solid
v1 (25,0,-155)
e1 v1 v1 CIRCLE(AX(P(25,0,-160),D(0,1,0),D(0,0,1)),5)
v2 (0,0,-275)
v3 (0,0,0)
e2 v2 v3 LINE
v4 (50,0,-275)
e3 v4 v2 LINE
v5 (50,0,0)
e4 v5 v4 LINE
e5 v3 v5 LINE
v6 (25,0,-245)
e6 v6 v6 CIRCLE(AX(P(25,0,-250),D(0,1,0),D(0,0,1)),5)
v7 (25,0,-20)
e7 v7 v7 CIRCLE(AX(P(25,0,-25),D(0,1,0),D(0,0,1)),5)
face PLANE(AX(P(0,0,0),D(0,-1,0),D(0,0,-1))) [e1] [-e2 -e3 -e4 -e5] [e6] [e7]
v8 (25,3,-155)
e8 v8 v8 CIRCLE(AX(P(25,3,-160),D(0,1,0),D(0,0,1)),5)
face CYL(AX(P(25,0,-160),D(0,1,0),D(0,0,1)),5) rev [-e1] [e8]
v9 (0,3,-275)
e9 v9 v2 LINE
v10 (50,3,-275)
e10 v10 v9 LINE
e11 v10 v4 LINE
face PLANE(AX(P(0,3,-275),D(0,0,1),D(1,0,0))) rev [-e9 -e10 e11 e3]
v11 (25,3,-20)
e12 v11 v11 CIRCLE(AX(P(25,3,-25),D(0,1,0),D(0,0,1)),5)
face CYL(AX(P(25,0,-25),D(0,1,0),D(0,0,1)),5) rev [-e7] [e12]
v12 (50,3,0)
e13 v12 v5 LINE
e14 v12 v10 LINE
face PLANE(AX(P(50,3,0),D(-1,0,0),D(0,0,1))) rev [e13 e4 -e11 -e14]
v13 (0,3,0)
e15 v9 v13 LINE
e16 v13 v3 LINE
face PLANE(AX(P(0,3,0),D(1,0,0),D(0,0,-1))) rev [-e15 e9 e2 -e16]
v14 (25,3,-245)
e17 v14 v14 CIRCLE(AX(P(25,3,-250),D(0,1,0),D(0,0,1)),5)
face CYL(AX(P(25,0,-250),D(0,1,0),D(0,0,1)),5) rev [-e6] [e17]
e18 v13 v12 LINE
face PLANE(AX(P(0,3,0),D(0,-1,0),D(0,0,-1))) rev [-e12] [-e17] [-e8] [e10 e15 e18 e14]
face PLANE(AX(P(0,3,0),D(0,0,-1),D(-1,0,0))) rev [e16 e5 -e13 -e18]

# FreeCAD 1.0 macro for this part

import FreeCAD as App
import Part
import Sketcher
from FreeCAD import Vector


def add_polygon(sketch, points):
    """Adds a closed chain of lines whose ends are joined by coincident constraints."""
    first, n = sketch.GeometryCount, len(points)
    for a, b in zip(points, points[1:] + points[:1]):
        sketch.addGeometry(Part.LineSegment(App.Vector(*a, 0), App.Vector(*b, 0)), False)
    for i in range(n):
        sketch.addConstraint(Sketcher.Constraint("Coincident", first + i, 2, first + (i + 1) % n, 1))

doc = App.newDocument("Part")
body = doc.addObject("PartDesign::Body", "Body")

sketch1 = doc.addObject("Sketcher::SketchObject", "Sketch")
body.addObject(sketch1)
sketch1.AttachmentSupport = (doc.XZ_Plane, [""])
sketch1.MapMode = "FlatFace"
add_polygon(sketch1, [(0, -275), (0, 0), (50, 0), (50, -275)])
sketch1.addConstraint([
    Sketcher.Constraint("Vertical", 0),
    Sketcher.Constraint("Horizontal", 1),
    Sketcher.Constraint("Vertical", 2),
    Sketcher.Constraint("Horizontal", 3),
    Sketcher.Constraint("Coincident", 0, 2, -1, 1),
    Sketcher.Constraint("DistanceX", 1, 1, 1, 2, 50.0),
    Sketcher.Constraint("DistanceY", 0, 1, 0, 2, 275.0),
])
pad1 = doc.addObject("PartDesign::Pad", "Pad")
body.addObject(pad1)
pad1.Profile = sketch1
pad1.Length = 3
pad1.Reversed = True

sketch2 = doc.addObject("Sketcher::SketchObject", "Sketch001")
body.addObject(sketch2)
sketch2.AttachmentSupport = (doc.XZ_Plane, [""])
sketch2.MapMode = "FlatFace"
sketch2.AttachmentOffset = App.Placement(Vector(0, 0, -3), App.Rotation())
sketch2.addGeometry([
    Part.Circle(Vector(25, -250, 0), Vector(0, 0, 1), 5),
    Part.Circle(Vector(25, -25, 0), Vector(0, 0, 1), 5),
    Part.Circle(Vector(25, -160, 0), Vector(0, 0, 1), 5),
], False)
sketch2.addConstraint([
    Sketcher.Constraint("Equal", 0, 1),
    Sketcher.Constraint("Equal", 1, 2),
    Sketcher.Constraint("Vertical", 0, 3, 1, 3),
    Sketcher.Constraint("Vertical", 1, 3, 2, 3),
    Sketcher.Constraint("Diameter", 0, 10.0),
    Sketcher.Constraint("DistanceX", -1, 1, 0, 3, 25.0),
    Sketcher.Constraint("DistanceY", 0, 3, -1, 1, 250.0),
    Sketcher.Constraint("DistanceY", 1, 3, -1, 1, 25.0),
    Sketcher.Constraint("DistanceY", 2, 3, -1, 1, 160.0),
])
pocket1 = doc.addObject("PartDesign::Pocket", "Pocket")
body.addObject(pocket1)
pocket1.Profile = sketch2
pocket1.Type = "ThroughAll"
pocket1.Reversed = True

doc.recompute()
